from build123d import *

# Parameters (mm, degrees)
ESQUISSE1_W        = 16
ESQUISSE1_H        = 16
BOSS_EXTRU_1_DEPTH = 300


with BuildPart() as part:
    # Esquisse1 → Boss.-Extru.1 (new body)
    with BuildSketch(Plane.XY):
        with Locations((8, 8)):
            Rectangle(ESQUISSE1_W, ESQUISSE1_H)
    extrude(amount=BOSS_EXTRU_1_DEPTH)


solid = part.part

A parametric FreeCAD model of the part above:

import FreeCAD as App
import Part
import Sketcher
from FreeCAD import Vector


def add_polygon(sketch, points):
    """Adds a closed chain of lines whose ends are joined by coincident constraints."""
    first, n = sketch.GeometryCount, len(points)
    for a, b in zip(points, points[1:] + points[:1]):
        sketch.addGeometry(Part.LineSegment(App.Vector(*a, 0), App.Vector(*b, 0)), False)
    for i in range(n):
        sketch.addConstraint(Sketcher.Constraint("Coincident", first + i, 2, first + (i + 1) % n, 1))

doc = App.newDocument("Part")
body = doc.addObject("PartDesign::Body", "Body")

# Sketch on XY plane
sketch1 = body.newObject("Sketcher::SketchObject", "Sketch")
sketch1.AttachmentSupport = (doc.getObject("XY_Plane"), [""])
sketch1.MapMode = "FlatFace"
add_polygon(sketch1, [(0, 16), (0, 0), (16, 0), (16, 16)])  # lines 0-3
sketch1.addConstraint(Sketcher.Constraint("Vertical", 0))
sketch1.addConstraint(Sketcher.Constraint("Horizontal", 1))
sketch1.addConstraint(Sketcher.Constraint("Vertical", 2))
sketch1.addConstraint(Sketcher.Constraint("Horizontal", 3))
sketch1.addConstraint(Sketcher.Constraint("Coincident", 0, 2, -1, 1))
sketch1.addConstraint(Sketcher.Constraint("Equal", 3, 0))
sketch1.addConstraint(Sketcher.Constraint("DistanceX", 1, 1, 1, 2, 16.0))
pad1 = body.newObject("PartDesign::Pad", "Pad")
pad1.Profile = sketch1
pad1.Length = 300

doc.recompute()
